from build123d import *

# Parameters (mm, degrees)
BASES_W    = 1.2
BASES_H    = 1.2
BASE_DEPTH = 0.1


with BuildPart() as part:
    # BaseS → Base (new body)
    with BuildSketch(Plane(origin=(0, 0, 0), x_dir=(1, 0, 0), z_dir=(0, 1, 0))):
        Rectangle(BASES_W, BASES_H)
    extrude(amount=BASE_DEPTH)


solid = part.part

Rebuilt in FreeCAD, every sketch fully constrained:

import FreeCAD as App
import Part
import Sketcher
from FreeCAD import Vector
Q = App.Units.Quantity


def add_polygon(sketch, points):
    """Adds a closed chain of lines whose ends are joined by coincident constraints."""
    first, n = sketch.GeometryCount, len(points)
    for a, b in zip(points, points[1:] + points[:1]):
        sketch.addGeometry(Part.LineSegment(App.Vector(*a, 0), App.Vector(*b, 0)), False)
    for i in range(n):
        sketch.addConstraint(Sketcher.Constraint("Coincident", first + i, 2, first + (i + 1) % n, 1))

doc = App.newDocument("Part")
body = doc.addObject("PartDesign::Body", "Body")

sketch1 = body.newObject("Sketcher::SketchObject", "Sketch")
sketch1.AttachmentSupport = (doc.getObject("XZ_Plane"), [""])
sketch1.MapMode = "FlatFace"
add_polygon(sketch1, [(-0.6, -0.6), (-0.6, 0.6), (0.6, 0.6), (0.6, -0.6)])
sketch1.addConstraint(Sketcher.Constraint("Vertical", 0))
sketch1.addConstraint(Sketcher.Constraint("Horizontal", 1))
sketch1.addConstraint(Sketcher.Constraint("Vertical", 2))
sketch1.addConstraint(Sketcher.Constraint("Horizontal", 3))
sketch1.addConstraint(Sketcher.Constraint("Symmetric", 0, 2, 2, 2, -1, 1))
sketch1.addConstraint(Sketcher.Constraint("Equal", 3, 0))
sketch1.addConstraint(Sketcher.Constraint("DistanceX", 1, 1, 1, 2, Q("1.2 mm")))
pad1 = body.newObject("PartDesign::Pad", "Pad")
pad1.Profile = sketch1
pad1.Length = 0.1
pad1.Reversed = True

doc.recompute()
